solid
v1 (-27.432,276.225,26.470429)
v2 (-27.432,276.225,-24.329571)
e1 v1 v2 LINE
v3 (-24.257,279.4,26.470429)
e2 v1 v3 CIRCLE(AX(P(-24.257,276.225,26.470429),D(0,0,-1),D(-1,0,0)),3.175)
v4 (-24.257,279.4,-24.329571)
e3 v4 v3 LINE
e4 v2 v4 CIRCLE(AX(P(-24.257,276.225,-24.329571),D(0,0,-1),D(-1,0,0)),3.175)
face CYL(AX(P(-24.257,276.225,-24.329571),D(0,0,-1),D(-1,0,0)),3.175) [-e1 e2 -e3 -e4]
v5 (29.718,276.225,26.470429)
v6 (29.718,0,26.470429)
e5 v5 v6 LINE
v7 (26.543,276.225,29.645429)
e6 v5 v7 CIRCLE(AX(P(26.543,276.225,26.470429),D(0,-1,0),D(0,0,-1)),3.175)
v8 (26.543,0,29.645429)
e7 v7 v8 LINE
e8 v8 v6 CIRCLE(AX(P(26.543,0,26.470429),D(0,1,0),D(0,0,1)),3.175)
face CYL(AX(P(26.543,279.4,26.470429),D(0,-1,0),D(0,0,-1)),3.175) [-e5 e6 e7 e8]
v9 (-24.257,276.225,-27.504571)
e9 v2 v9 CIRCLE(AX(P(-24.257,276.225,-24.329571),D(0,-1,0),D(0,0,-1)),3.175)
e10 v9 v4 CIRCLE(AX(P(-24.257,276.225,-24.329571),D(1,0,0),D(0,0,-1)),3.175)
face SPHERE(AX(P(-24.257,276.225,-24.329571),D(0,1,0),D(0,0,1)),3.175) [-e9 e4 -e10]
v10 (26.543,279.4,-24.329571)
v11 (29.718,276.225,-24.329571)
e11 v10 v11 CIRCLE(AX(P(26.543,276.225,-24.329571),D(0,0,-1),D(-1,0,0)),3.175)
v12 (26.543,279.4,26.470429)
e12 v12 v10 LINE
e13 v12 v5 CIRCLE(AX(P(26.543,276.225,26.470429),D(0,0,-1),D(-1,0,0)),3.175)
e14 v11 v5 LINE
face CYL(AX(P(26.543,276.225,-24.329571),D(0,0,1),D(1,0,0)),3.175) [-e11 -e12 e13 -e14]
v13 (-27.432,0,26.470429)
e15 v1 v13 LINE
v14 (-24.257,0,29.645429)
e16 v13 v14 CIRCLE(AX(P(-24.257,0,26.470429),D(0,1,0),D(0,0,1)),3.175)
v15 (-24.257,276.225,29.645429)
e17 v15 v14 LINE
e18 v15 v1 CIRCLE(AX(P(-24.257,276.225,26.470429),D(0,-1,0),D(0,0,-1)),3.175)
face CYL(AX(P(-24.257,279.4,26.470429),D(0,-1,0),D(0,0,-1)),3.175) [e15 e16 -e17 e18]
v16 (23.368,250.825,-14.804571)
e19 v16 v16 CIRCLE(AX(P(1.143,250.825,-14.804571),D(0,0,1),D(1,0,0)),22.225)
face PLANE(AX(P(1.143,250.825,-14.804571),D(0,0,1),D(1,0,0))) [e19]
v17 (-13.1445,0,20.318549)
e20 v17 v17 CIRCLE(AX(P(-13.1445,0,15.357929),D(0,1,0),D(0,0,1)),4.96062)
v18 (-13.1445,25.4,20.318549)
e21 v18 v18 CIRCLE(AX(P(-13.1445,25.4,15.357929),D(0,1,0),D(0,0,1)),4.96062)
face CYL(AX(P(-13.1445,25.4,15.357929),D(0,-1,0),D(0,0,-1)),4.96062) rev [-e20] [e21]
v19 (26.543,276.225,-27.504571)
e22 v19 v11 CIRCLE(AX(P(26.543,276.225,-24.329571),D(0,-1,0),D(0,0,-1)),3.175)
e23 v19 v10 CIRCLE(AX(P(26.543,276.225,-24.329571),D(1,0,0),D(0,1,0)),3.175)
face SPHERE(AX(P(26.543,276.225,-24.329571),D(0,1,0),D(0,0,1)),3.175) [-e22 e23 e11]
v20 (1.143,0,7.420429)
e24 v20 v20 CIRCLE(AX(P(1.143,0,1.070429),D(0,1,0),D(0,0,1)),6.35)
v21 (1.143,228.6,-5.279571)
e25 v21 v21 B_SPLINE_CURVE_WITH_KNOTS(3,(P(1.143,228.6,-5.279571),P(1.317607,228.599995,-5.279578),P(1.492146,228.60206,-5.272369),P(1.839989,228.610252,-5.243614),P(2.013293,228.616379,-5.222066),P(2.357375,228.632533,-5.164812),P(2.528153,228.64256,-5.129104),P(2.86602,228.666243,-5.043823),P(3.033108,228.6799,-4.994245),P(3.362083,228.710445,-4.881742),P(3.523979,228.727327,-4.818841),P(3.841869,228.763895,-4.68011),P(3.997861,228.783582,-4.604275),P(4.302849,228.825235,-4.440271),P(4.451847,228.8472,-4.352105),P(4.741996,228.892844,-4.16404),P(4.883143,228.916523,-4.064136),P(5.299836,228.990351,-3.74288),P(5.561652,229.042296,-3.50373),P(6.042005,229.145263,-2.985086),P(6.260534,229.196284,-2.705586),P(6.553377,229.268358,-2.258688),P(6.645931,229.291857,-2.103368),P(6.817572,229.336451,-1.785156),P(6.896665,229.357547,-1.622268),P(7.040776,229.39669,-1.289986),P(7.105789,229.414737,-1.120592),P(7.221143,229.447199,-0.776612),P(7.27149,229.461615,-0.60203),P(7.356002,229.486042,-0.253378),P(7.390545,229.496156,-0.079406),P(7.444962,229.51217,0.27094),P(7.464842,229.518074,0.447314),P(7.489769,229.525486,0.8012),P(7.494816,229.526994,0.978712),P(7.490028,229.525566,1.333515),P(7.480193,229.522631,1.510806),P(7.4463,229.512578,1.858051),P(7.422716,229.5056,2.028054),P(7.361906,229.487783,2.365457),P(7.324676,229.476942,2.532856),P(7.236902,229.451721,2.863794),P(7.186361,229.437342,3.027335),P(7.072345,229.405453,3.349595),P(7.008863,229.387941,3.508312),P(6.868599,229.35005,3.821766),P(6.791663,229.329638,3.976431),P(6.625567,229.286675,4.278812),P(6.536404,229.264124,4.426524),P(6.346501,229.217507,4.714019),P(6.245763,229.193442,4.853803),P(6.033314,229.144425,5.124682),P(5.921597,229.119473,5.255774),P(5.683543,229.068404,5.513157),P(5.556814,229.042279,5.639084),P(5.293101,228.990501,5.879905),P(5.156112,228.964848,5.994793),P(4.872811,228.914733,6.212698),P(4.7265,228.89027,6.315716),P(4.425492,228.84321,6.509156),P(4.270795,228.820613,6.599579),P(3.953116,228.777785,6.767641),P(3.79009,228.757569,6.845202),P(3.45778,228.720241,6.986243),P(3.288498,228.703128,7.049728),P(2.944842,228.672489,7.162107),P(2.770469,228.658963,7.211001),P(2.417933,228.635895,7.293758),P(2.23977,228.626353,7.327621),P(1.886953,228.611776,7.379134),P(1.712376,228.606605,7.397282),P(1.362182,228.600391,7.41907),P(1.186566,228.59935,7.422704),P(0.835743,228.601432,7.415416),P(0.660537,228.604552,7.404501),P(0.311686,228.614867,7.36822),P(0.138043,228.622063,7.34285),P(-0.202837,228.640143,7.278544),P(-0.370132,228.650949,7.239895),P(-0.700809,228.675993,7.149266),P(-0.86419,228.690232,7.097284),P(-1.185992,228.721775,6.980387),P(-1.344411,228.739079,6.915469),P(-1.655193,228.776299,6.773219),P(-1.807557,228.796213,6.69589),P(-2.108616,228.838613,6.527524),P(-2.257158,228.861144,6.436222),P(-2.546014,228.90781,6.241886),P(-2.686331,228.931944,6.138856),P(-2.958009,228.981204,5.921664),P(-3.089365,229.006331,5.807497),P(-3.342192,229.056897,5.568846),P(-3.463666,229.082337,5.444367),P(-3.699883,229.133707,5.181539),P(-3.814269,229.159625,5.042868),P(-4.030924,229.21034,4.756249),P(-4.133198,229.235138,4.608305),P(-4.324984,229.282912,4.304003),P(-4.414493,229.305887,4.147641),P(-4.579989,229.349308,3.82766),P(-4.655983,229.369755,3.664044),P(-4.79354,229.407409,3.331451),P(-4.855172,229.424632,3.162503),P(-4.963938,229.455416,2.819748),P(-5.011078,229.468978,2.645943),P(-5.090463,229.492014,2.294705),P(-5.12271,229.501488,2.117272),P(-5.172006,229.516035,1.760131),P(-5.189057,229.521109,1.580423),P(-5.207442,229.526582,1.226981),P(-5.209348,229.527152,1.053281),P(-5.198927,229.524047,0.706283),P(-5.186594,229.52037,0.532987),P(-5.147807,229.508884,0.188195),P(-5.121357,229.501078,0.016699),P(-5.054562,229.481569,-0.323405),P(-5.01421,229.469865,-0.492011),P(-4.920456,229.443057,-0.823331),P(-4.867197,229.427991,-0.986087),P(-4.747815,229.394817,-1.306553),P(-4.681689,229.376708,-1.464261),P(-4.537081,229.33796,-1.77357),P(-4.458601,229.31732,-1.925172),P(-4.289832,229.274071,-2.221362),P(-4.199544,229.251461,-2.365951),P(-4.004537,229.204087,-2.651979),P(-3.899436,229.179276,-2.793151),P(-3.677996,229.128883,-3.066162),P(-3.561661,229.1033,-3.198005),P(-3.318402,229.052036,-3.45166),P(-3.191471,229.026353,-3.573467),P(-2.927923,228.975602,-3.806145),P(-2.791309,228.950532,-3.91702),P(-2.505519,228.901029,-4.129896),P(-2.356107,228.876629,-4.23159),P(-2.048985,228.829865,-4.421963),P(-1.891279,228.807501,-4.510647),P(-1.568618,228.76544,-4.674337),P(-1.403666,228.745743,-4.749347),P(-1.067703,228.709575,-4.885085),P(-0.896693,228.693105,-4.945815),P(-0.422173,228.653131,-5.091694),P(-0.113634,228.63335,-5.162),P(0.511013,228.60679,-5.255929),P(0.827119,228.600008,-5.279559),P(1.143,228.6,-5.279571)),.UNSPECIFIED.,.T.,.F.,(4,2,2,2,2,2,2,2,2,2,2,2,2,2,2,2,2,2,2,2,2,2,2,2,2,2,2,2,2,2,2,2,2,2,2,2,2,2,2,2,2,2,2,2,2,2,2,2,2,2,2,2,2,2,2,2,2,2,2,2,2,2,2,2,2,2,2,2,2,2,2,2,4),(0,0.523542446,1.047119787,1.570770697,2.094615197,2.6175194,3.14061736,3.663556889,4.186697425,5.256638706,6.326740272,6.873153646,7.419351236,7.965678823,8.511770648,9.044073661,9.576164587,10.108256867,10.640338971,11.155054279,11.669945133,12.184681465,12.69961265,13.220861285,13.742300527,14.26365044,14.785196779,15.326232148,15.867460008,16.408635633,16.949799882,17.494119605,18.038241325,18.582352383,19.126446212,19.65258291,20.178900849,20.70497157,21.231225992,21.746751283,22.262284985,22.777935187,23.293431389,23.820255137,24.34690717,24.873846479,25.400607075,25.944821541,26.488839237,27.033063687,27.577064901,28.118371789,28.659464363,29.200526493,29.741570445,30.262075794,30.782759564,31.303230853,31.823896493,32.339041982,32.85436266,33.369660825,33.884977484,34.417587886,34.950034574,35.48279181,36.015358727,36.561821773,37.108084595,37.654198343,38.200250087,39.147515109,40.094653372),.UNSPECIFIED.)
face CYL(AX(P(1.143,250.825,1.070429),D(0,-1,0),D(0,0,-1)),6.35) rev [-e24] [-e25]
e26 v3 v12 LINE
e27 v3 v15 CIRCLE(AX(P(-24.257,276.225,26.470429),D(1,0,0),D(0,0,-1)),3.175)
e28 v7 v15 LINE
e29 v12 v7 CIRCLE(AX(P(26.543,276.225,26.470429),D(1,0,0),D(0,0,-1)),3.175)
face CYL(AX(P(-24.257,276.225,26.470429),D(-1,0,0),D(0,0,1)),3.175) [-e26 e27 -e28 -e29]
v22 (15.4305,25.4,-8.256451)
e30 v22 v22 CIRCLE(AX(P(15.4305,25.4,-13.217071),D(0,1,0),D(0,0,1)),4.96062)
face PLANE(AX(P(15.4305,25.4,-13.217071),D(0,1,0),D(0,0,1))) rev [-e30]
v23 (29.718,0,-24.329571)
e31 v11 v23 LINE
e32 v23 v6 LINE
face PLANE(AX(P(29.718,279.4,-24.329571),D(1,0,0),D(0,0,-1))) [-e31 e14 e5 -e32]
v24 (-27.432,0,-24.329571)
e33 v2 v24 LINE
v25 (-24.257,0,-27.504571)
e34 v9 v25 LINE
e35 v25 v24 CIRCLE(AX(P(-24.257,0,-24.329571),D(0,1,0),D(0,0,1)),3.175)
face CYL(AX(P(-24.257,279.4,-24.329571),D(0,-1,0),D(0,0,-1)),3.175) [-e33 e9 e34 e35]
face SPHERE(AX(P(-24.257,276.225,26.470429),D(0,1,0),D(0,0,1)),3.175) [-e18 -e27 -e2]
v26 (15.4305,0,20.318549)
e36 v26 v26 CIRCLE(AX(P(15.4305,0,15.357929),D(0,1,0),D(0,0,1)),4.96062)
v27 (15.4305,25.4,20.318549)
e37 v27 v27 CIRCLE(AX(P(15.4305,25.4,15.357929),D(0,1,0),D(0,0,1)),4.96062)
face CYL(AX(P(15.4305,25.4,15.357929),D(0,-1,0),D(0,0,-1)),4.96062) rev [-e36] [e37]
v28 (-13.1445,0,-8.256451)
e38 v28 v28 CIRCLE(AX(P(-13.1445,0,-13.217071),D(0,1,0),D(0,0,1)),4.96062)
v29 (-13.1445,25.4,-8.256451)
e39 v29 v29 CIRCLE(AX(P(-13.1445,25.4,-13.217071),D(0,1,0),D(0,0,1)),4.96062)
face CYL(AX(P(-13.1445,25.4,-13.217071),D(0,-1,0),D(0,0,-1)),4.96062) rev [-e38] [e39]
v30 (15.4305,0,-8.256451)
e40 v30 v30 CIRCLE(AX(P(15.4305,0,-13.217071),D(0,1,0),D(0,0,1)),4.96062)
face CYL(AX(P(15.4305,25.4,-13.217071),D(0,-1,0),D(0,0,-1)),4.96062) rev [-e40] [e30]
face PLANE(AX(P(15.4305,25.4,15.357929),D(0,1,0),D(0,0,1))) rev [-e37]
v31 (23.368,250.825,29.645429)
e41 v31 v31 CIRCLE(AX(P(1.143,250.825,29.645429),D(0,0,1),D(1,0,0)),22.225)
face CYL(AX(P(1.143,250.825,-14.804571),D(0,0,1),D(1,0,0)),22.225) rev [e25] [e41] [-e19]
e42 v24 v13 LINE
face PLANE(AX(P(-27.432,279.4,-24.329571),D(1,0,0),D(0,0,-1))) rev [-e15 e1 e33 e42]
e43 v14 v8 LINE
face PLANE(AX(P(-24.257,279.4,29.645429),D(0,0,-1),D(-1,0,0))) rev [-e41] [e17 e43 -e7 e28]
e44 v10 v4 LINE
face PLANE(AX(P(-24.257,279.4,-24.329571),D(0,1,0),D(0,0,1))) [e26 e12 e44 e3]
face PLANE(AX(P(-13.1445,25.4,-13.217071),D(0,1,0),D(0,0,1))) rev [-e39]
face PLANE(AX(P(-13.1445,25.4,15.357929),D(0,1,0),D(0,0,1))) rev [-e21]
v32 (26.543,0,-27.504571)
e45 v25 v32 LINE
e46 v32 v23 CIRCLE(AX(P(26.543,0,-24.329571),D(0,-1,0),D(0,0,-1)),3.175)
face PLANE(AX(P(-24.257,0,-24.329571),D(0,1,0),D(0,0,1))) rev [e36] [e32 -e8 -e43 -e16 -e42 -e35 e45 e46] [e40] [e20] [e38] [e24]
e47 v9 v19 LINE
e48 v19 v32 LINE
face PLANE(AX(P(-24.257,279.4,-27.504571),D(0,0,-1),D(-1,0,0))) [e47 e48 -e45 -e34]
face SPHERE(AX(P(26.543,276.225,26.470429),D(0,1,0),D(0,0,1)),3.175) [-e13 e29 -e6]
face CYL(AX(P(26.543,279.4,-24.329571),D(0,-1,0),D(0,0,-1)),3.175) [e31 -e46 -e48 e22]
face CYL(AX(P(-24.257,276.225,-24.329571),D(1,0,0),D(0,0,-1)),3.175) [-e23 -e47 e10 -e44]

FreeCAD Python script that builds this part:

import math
import FreeCAD as App
import Part
import Sketcher
Q = App.Units.Quantity


def edges_at(feature, points):
    """Names of the edges that pass closest to the given points."""
    edges = feature.Shape.Edges
    near = lambda p: min(range(len(edges)), key=lambda i: edges[i].distToShape(Part.Vertex(*p))[0])
    return sorted({f"Edge{near(p) + 1}" for p in points})

doc = App.newDocument("Part")
body = doc.addObject("PartDesign::Body", "Body")

# Sketch on XZ plane
sketch1 = body.newObject("Sketcher::SketchObject", "Sketch")
sketch1.AttachmentSupport = (doc.getObject("XZ_Plane"), [""])
sketch1.MapMode = "FlatFace"
sketch1.addGeometry(Part.LineSegment(App.Vector(26.5, -27.5, 0), App.Vector(-24.3, -27.5, 0)), False)
sketch1.addGeometry(Part.ArcOfCircle(Part.Circle(App.Vector(-24.3, -24.3, 0), App.Vector(0, 0, 1), 3.2), math.radians(-180), math.radians(-90)), False)
sketch1.addGeometry(Part.LineSegment(App.Vector(-27.4, -24.3, 0), App.Vector(-27.4, 26.5, 0)), False)
sketch1.addGeometry(Part.ArcOfCircle(Part.Circle(App.Vector(-24.3, 26.5, 0), App.Vector(0, 0, 1), 3.2), math.radians(90), math.radians(180)), False)
sketch1.addGeometry(Part.LineSegment(App.Vector(-24.3, 29.6, 0), App.Vector(26.5, 29.6, 0)), False)
sketch1.addGeometry(Part.ArcOfCircle(Part.Circle(App.Vector(26.5, 26.5, 0), App.Vector(0, 0, 1), 3.2), math.radians(0), math.radians(90)), False)
sketch1.addGeometry(Part.LineSegment(App.Vector(29.7, 26.5, 0), App.Vector(29.7, -24.3, 0)), False)
sketch1.addGeometry(Part.ArcOfCircle(Part.Circle(App.Vector(26.5, -24.3, 0), App.Vector(0, 0, 1), 3.2), math.radians(-90), math.radians(0)), False)
sketch1.addConstraint(Sketcher.Constraint("Tangent", 0, 2, 1, 2))
sketch1.addConstraint(Sketcher.Constraint("Tangent", 1, 1, 2, 1))
sketch1.addConstraint(Sketcher.Constraint("Tangent", 2, 2, 3, 2))
sketch1.addConstraint(Sketcher.Constraint("Tangent", 3, 1, 4, 1))
sketch1.addConstraint(Sketcher.Constraint("Tangent", 4, 2, 5, 2))
sketch1.addConstraint(Sketcher.Constraint("Tangent", 5, 1, 6, 1))
sketch1.addConstraint(Sketcher.Constraint("Tangent", 6, 2, 7, 2))
sketch1.addConstraint(Sketcher.Constraint("Tangent", 7, 1, 0, 1))
sketch1.addConstraint(Sketcher.Constraint("Horizontal", 0))
sketch1.addConstraint(Sketcher.Constraint("Vertical", 2))
sketch1.addConstraint(Sketcher.Constraint("Horizontal", 4))
sketch1.addConstraint(Sketcher.Constraint("Vertical", 6))
sketch1.addConstraint(Sketcher.Constraint("Equal", 1, 3))
sketch1.addConstraint(Sketcher.Constraint("Equal", 3, 5))
sketch1.addConstraint(Sketcher.Constraint("Equal", 5, 7))
sketch1.addConstraint(Sketcher.Constraint("Equal", 4, 2))
sketch1.addConstraint(Sketcher.Constraint("DistanceX", 0, 2, 0, 1, Q("2 in")))
sketch1.addConstraint(Sketcher.Constraint("Radius", 1, Q("0.125 in")))
sketch1.addConstraint(Sketcher.Constraint("DistanceX", 1, 1, -1, 1, Q("1.08 in")))
sketch1.addConstraint(Sketcher.Constraint("DistanceY", 1, 3, -1, 1, 24.329571))
pad1 = body.newObject("PartDesign::Pad", "Pad")
pad1.Profile = sketch1
pad1.Length = Q("11 in")
pad1.Reversed = True

# Sketch on XZ plane
sketch2 = body.newObject("Sketcher::SketchObject", "Sketch001")
sketch2.AttachmentSupport = (doc.getObject("XZ_Plane"), [""])
sketch2.MapMode = "FlatFace"
sketch2.addGeometry(Part.Circle(App.Vector(-13.1, -13.2, 0), App.Vector(0, 0, 1), 5), False)
sketch2.addGeometry(Part.Circle(App.Vector(15.4, -13.2, 0), App.Vector(0, 0, 1), 5), False)
sketch2.addGeometry(Part.Circle(App.Vector(15.4, 15.4, 0), App.Vector(0, 0, 1), 5), False)
sketch2.addGeometry(Part.Circle(App.Vector(-13.1, 15.4, 0), App.Vector(0, 0, 1), 5), False)
sketch2.addConstraint(Sketcher.Constraint("Equal", 0, 1))
sketch2.addConstraint(Sketcher.Constraint("Equal", 1, 2))
sketch2.addConstraint(Sketcher.Constraint("Equal", 2, 3))
sketch2.addConstraint(Sketcher.Constraint("Horizontal", 0, 3, 1, 3))
sketch2.addConstraint(Sketcher.Constraint("Horizontal", 2, 3, 3, 3))
sketch2.addConstraint(Sketcher.Constraint("Vertical", 1, 3, 2, 3))
sketch2.addConstraint(Sketcher.Constraint("Vertical", 0, 3, 3, 3))
sketch2.addConstraint(Sketcher.Constraint("Diameter", 0, Q("0.3906 in")))
sketch2.addConstraint(Sketcher.Constraint("DistanceX", 0, 3, 1, 3, Q("1.125 in")))
sketch2.addConstraint(Sketcher.Constraint("DistanceY", 1, 3, 2, 3, Q("1.125 in")))
sketch2.addConstraint(Sketcher.Constraint("DistanceX", 0, 3, -1, 1, Q("0.5175 in")))
sketch2.addConstraint(Sketcher.Constraint("DistanceY", 0, 3, -1, 1, 13.217071))
pocket1 = body.newObject("PartDesign::Pocket", "Pocket")
pocket1.Profile = sketch2
pocket1.Length = Q("1 in")

# Sketch on XZ plane
sketch3 = body.newObject("Sketcher::SketchObject", "Sketch002")
sketch3.AttachmentSupport = (doc.getObject("XZ_Plane"), [""])
sketch3.MapMode = "FlatFace"
sketch3.addGeometry(Part.Circle(App.Vector(1, 1, 0), App.Vector(0, 0, 1), 6), False)
sketch3.addConstraint(Sketcher.Constraint("Diameter", 0, Q("0.5 in")))
sketch3.addConstraint(Sketcher.Constraint("DistanceX", -1, 1, 0, 3, Q("0.045 in")))
sketch3.addConstraint(Sketcher.Constraint("DistanceY", -1, 1, 0, 3, 1.070429))
pocket2 = body.newObject("PartDesign::Pocket", "Pocket001")
pocket2.Profile = sketch3
pocket2.Length = Q("9.875 in")
doc.recompute()

fillet = body.newObject("PartDesign::Fillet", "Fillet")
fillet.Base = (pocket2, edges_at(pocket2, [
    (-26.502, 279.4, 28.715),
    (1.143, 279.4, 29.645),
    (28.788, 279.4, 28.715),
    (29.718, 279.4, 1.07),
    (28.788, 279.4, -26.575),
    (1.143, 279.4, -27.505),
    (-26.502, 279.4, -26.575),
    (-27.432, 279.4, 1.07),
]))
fillet.Radius = Q("0.125 in")

# Sketch on XY plane
sketch4 = body.newObject("Sketcher::SketchObject", "Sketch003")
sketch4.AttachmentSupport = (doc.getObject("XY_Plane"), [""])
sketch4.MapMode = "FlatFace"
sketch4.AttachmentOffset = App.Placement(App.Vector(0, 0, 29.645429), App.Rotation())
sketch4.addGeometry(Part.Circle(App.Vector(1, 251, 0), App.Vector(0, 0, 1), 22), False)
sketch4.addConstraint(Sketcher.Constraint("Diameter", 0, Q("1.75 in")))
sketch4.addConstraint(Sketcher.Constraint("DistanceX", -1, 1, 0, 3, Q("0.045 in")))
sketch4.addConstraint(Sketcher.Constraint("DistanceY", -1, 1, 0, 3, Q("9.875 in")))
pocket3 = body.newObject("PartDesign::Pocket", "Pocket002")
pocket3.Profile = sketch4
pocket3.Length = Q("1.75 in")

doc.recompute()
